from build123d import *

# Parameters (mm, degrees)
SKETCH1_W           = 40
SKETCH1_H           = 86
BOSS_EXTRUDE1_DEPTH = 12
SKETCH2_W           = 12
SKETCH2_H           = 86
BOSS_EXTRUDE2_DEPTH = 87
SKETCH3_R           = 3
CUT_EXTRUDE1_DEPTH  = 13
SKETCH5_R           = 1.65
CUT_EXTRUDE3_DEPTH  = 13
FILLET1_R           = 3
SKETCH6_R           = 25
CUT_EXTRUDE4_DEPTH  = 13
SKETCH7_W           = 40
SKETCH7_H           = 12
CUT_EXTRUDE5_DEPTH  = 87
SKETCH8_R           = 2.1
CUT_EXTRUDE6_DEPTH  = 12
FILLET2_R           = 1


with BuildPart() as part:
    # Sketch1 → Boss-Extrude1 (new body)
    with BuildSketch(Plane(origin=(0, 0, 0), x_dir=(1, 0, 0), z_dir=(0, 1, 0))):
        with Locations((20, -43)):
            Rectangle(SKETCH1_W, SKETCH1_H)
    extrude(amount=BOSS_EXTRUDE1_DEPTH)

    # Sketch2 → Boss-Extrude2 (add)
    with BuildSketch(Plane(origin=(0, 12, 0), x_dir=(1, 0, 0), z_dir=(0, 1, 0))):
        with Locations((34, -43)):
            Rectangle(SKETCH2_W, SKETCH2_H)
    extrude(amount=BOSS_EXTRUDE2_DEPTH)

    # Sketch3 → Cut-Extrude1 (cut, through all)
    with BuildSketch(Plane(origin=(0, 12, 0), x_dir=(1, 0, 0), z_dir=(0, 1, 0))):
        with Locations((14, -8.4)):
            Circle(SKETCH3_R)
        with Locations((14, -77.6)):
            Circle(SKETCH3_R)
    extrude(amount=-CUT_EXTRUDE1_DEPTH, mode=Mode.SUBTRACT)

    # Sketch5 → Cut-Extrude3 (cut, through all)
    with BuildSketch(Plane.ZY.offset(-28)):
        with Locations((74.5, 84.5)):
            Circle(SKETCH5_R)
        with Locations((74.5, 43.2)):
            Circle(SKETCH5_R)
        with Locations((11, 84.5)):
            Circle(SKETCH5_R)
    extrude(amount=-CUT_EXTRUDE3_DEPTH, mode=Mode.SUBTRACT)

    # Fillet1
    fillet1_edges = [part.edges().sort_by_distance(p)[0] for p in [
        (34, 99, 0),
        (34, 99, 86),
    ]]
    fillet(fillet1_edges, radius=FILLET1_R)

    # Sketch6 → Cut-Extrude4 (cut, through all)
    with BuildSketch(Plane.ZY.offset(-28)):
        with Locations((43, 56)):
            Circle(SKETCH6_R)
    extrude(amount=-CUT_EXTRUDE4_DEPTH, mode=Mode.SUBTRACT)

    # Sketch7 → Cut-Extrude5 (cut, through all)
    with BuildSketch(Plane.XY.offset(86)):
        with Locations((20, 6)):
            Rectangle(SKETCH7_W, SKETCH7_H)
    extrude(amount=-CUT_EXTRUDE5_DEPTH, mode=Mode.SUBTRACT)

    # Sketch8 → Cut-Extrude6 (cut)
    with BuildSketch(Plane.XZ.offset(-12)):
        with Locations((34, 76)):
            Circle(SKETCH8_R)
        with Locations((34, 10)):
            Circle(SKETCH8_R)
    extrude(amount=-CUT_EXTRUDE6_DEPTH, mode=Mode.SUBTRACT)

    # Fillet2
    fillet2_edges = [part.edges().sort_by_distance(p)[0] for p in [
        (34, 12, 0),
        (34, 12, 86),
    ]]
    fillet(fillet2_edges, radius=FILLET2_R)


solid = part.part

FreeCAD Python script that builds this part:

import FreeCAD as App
import Part
import Sketcher
from FreeCAD import Vector
Q = App.Units.Quantity


def edges_at(feature, points):
    """Names of the edges that pass closest to the given points."""
    edges = feature.Shape.Edges
    near = lambda p: min(range(len(edges)), key=lambda i: edges[i].distToShape(Part.Vertex(*p))[0])
    return sorted({f"Edge{near(p) + 1}" for p in points})

doc = App.newDocument("Part")
body = doc.addObject("PartDesign::Body", "Body")

sketch1 = doc.addObject("Sketcher::SketchObject", "Sketch")
body.addObject(sketch1)
sketch1.AttachmentSupport = (doc.XZ_Plane, [""])
sketch1.MapMode = "FlatFace"
sketch1.addGeometry([
    Part.LineSegment(Vector(0, 0, 0), Vector(0, 86, 0)),
    Part.LineSegment(Vector(0, 86, 0), Vector(40, 86, 0)),
    Part.LineSegment(Vector(40, 86, 0), Vector(40, 0, 0)),
    Part.LineSegment(Vector(40, 0, 0), Vector(0, 0, 0)),
], False)
sketch1.addConstraint([
    Sketcher.Constraint("Coincident", 0, 2, 1, 1),
    Sketcher.Constraint("Coincident", 1, 2, 2, 1),
    Sketcher.Constraint("Coincident", 2, 2, 3, 1),
    Sketcher.Constraint("Coincident", 3, 2, 0, 1),
    Sketcher.Constraint("Vertical", 0),
    Sketcher.Constraint("Horizontal", 1),
    Sketcher.Constraint("Vertical", 2),
    Sketcher.Constraint("Horizontal", 3),
    Sketcher.Constraint("Coincident", 3, 2, -1, 1),
    Sketcher.Constraint("DistanceX", 1, 1, 1, 2, Q("40 mm")),
    Sketcher.Constraint("DistanceY", 0, 1, 0, 2, Q("86 mm")),
])
pad1 = doc.addObject("PartDesign::Pad", "Pad")
body.addObject(pad1)
pad1.Profile = sketch1
pad1.Length = 12
pad1.Reversed = True

sketch2 = doc.addObject("Sketcher::SketchObject", "Sketch001")
body.addObject(sketch2)
sketch2.AttachmentSupport = (doc.XZ_Plane, [""])
sketch2.MapMode = "FlatFace"
sketch2.AttachmentOffset = App.Placement(Vector(0, 0, -12), App.Rotation())
sketch2.addGeometry([
    Part.LineSegment(Vector(28, 0, 0), Vector(28, 86, 0)),
    Part.LineSegment(Vector(28, 86, 0), Vector(40, 86, 0)),
    Part.LineSegment(Vector(40, 86, 0), Vector(40, 0, 0)),
    Part.LineSegment(Vector(40, 0, 0), Vector(28, 0, 0)),
], False)
sketch2.addConstraint([
    Sketcher.Constraint("Coincident", 0, 2, 1, 1),
    Sketcher.Constraint("Coincident", 1, 2, 2, 1),
    Sketcher.Constraint("Coincident", 2, 2, 3, 1),
    Sketcher.Constraint("Coincident", 3, 2, 0, 1),
    Sketcher.Constraint("Vertical", 0),
    Sketcher.Constraint("Horizontal", 1),
    Sketcher.Constraint("Vertical", 2),
    Sketcher.Constraint("Horizontal", 3),
    Sketcher.Constraint("PointOnObject", 2, 2, -1),
    Sketcher.Constraint("DistanceX", 1, 1, 1, 2, Q("12 mm")),
    Sketcher.Constraint("DistanceY", 0, 1, 0, 2, Q("86 mm")),
    Sketcher.Constraint("DistanceX", -1, 1, 0, 2, Q("28 mm")),
])
pad2 = doc.addObject("PartDesign::Pad", "Pad001")
body.addObject(pad2)
pad2.Profile = sketch2
pad2.Length = 87
pad2.Reversed = True

sketch3 = doc.addObject("Sketcher::SketchObject", "Sketch002")
body.addObject(sketch3)
sketch3.AttachmentSupport = (doc.XZ_Plane, [""])
sketch3.MapMode = "FlatFace"
sketch3.AttachmentOffset = App.Placement(Vector(0, 0, -12), App.Rotation())
sketch3.addGeometry([
    Part.Circle(Vector(14, 8.4, 0), Vector(0, 0, 1), 3),
    Part.Circle(Vector(14, 77.6, 0), Vector(0, 0, 1), 3),
], False)
sketch3.addConstraint([
    Sketcher.Constraint("Equal", 0, 1),
    Sketcher.Constraint("Vertical", 0, 3, 1, 3),
    Sketcher.Constraint("Diameter", 0, Q("6 mm")),
    Sketcher.Constraint("DistanceX", -1, 1, 0, 3, Q("14 mm")),
    Sketcher.Constraint("DistanceY", -1, 1, 0, 3, Q("8.4 mm")),
    Sketcher.Constraint("DistanceY", -1, 1, 1, 3, Q("77.6 mm")),
])
pocket1 = doc.addObject("PartDesign::Pocket", "Pocket")
body.addObject(pocket1)
pocket1.Profile = sketch3
pocket1.Type = "ThroughAll"
pocket1.Reversed = True

sketch4 = doc.addObject("Sketcher::SketchObject", "Sketch003")
body.addObject(sketch4)
sketch4.AttachmentSupport = (doc.YZ_Plane, [""])
sketch4.MapMode = "FlatFace"
sketch4.AttachmentOffset = App.Placement(Vector(0, 0, 28), App.Rotation())
sketch4.addGeometry([
    Part.Circle(Vector(84.5, 74.5, 0), Vector(0, 0, 1), 1.6),
    Part.Circle(Vector(43.2, 74.5, 0), Vector(0, 0, 1), 1.6),
    Part.Circle(Vector(84.5, 11, 0), Vector(0, 0, 1), 1.6),
], False)
sketch4.addConstraint([
    Sketcher.Constraint("Equal", 0, 1),
    Sketcher.Constraint("Equal", 1, 2),
    Sketcher.Constraint("Horizontal", 0, 3, 1, 3),
    Sketcher.Constraint("Vertical", 0, 3, 2, 3),
    Sketcher.Constraint("Diameter", 0, Q("3.3 mm")),
    Sketcher.Constraint("DistanceY", -1, 1, 2, 3, Q("11 mm")),
    Sketcher.Constraint("DistanceX", -1, 1, 0, 3, Q("84.5 mm")),
    Sketcher.Constraint("DistanceY", -1, 1, 0, 3, Q("74.5 mm")),
    Sketcher.Constraint("DistanceX", -1, 1, 1, 3, Q("43.2 mm")),
])
pocket2 = doc.addObject("PartDesign::Pocket", "Pocket001")
body.addObject(pocket2)
pocket2.Profile = sketch4
pocket2.Type = "ThroughAll"
pocket2.Reversed = True
doc.recompute()

fillet = doc.addObject("PartDesign::Fillet", "Fillet")
body.addObject(fillet)
fillet.Base = (pocket2, edges_at(pocket2, [(34, 99, 0), (34, 99, 86)]))
fillet.Radius = 3

sketch5 = doc.addObject("Sketcher::SketchObject", "Sketch004")
body.addObject(sketch5)
sketch5.AttachmentSupport = (doc.YZ_Plane, [""])
sketch5.MapMode = "FlatFace"
sketch5.AttachmentOffset = App.Placement(Vector(0, 0, 28), App.Rotation())
sketch5.addGeometry(Part.Circle(Vector(56, 43, 0), Vector(0, 0, 1), 25), False)
sketch5.addConstraint([
    Sketcher.Constraint("Diameter", 0, Q("50 mm")),
    Sketcher.Constraint("DistanceX", -1, 1, 0, 3, Q("56 mm")),
    Sketcher.Constraint("DistanceY", -1, 1, 0, 3, Q("43 mm")),
])
pocket3 = doc.addObject("PartDesign::Pocket", "Pocket002")
body.addObject(pocket3)
pocket3.Profile = sketch5
pocket3.Type = "ThroughAll"
pocket3.Reversed = True

sketch6 = doc.addObject("Sketcher::SketchObject", "Sketch005")
body.addObject(sketch6)
sketch6.AttachmentSupport = (doc.XY_Plane, [""])
sketch6.MapMode = "FlatFace"
sketch6.AttachmentOffset = App.Placement(Vector(0, 0, 86), App.Rotation())
sketch6.addGeometry([
    Part.LineSegment(Vector(0, 12, 0), Vector(0, 0, 0)),
    Part.LineSegment(Vector(0, 0, 0), Vector(40, 0, 0)),
    Part.LineSegment(Vector(40, 0, 0), Vector(40, 12, 0)),
    Part.LineSegment(Vector(40, 12, 0), Vector(0, 12, 0)),
], False)
sketch6.addConstraint([
    Sketcher.Constraint("Coincident", 0, 2, 1, 1),
    Sketcher.Constraint("Coincident", 1, 2, 2, 1),
    Sketcher.Constraint("Coincident", 2, 2, 3, 1),
    Sketcher.Constraint("Coincident", 3, 2, 0, 1),
    Sketcher.Constraint("Vertical", 0),
    Sketcher.Constraint("Horizontal", 1),
    Sketcher.Constraint("Vertical", 2),
    Sketcher.Constraint("Horizontal", 3),
    Sketcher.Constraint("Coincident", 0, 2, -1, 1),
    Sketcher.Constraint("DistanceX", 1, 1, 1, 2, Q("40 mm")),
    Sketcher.Constraint("DistanceY", 0, 2, 0, 1, Q("12 mm")),
])
pocket4 = doc.addObject("PartDesign::Pocket", "Pocket003")
body.addObject(pocket4)
pocket4.Profile = sketch6
pocket4.Type = "ThroughAll"

sketch7 = doc.addObject("Sketcher::SketchObject", "Sketch006")
body.addObject(sketch7)
sketch7.AttachmentSupport = (doc.XZ_Plane, [""])
sketch7.MapMode = "FlatFace"
sketch7.AttachmentOffset = App.Placement(Vector(0, 0, -12), App.Rotation())
sketch7.addGeometry([
    Part.Circle(Vector(34, 76, 0), Vector(0, 0, 1), 2.1),
    Part.Circle(Vector(34, 10, 0), Vector(0, 0, 1), 2.1),
], False)
sketch7.addConstraint([
    Sketcher.Constraint("Equal", 0, 1),
    Sketcher.Constraint("Vertical", 0, 3, 1, 3),
    Sketcher.Constraint("Diameter", 0, Q("4.2 mm")),
    Sketcher.Constraint("DistanceX", -1, 1, 0, 3, Q("34 mm")),
    Sketcher.Constraint("DistanceY", -1, 1, 0, 3, Q("76 mm")),
    Sketcher.Constraint("DistanceY", -1, 1, 1, 3, Q("10 mm")),
])
pocket5 = doc.addObject("PartDesign::Pocket", "Pocket004")
body.addObject(pocket5)
pocket5.Profile = sketch7
pocket5.Length = 12
doc.recompute()

fillet2 = doc.addObject("PartDesign::Fillet", "Fillet001")
body.addObject(fillet2)
fillet2.Base = (pocket5, edges_at(pocket5, [(34, 12, 0), (34, 12, 86)]))
fillet2.Radius = 1

doc.recompute()
